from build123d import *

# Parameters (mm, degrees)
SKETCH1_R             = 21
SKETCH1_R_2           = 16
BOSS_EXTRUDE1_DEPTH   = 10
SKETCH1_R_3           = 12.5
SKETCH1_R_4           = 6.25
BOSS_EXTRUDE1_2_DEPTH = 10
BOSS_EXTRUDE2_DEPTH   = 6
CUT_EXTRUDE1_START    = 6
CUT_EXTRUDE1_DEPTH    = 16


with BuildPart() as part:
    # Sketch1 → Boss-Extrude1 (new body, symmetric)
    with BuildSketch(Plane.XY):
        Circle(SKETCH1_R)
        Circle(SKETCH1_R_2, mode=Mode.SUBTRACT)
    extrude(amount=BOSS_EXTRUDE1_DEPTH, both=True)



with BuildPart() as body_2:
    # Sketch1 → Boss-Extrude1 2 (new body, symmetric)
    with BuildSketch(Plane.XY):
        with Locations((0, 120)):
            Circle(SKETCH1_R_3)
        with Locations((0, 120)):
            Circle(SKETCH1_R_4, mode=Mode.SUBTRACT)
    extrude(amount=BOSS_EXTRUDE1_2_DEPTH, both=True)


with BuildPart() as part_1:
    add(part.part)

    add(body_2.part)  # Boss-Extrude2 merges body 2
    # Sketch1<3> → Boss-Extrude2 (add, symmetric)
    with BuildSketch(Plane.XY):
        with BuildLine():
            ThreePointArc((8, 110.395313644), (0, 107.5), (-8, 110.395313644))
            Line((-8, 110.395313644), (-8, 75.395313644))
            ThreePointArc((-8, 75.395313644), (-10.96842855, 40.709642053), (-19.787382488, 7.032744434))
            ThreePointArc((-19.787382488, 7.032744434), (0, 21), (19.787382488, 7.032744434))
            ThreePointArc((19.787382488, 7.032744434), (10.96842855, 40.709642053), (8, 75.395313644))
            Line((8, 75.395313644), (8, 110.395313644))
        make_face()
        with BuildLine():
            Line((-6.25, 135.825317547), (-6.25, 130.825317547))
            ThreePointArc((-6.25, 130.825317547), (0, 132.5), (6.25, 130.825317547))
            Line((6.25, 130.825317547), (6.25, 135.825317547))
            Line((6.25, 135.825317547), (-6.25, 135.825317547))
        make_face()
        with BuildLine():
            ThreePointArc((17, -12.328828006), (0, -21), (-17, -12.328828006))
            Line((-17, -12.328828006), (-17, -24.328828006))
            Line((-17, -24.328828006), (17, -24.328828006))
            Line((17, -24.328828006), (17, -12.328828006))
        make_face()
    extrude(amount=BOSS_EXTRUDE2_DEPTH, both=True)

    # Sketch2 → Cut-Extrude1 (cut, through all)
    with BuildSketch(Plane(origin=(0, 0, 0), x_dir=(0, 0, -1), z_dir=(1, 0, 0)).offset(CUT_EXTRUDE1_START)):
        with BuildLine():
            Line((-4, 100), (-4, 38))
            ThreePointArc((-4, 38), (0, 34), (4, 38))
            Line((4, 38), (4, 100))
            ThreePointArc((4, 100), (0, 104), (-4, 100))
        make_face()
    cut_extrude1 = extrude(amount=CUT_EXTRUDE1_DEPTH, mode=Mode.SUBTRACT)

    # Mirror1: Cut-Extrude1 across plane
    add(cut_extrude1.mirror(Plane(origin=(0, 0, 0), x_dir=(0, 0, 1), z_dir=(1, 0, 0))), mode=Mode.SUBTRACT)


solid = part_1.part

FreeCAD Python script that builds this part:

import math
import FreeCAD as App
import Part
import Sketcher
from FreeCAD import Vector

doc = App.newDocument("Part")
body = doc.addObject("PartDesign::Body", "Body")

# Sketch on XY plane
sketch1 = body.newObject("Sketcher::SketchObject", "Sketch")
sketch1.AttachmentSupport = (doc.getObject("XY_Plane"), [""])
sketch1.MapMode = "FlatFace"
sketch1.addGeometry([
    Part.Circle(Vector(0, 0, 0), Vector(0, 0, 1), 21),
    Part.Circle(Vector(0, 0, 0), Vector(0, 0, 1), 16),
], False)
sketch1.addConstraint([
    Sketcher.Constraint("Coincident", 0, 3, -1, 1),
    Sketcher.Constraint("Coincident", 1, 3, -1, 1),
    Sketcher.Constraint("Diameter", 0, 42.0),
    Sketcher.Constraint("Diameter", 1, 32.0),
])
pad1 = body.newObject("PartDesign::Pad", "Pad")
pad1.Profile = sketch1
pad1.Length = 20
pad1.Midplane = True
body2 = doc.addObject("PartDesign::Body", "Body001")

# Sketch on XY plane
sketch2 = body2.newObject("Sketcher::SketchObject", "Sketch001")
sketch2.AttachmentSupport = (doc.getObject("XY_Plane001"), [""])
sketch2.MapMode = "FlatFace"
sketch2.addGeometry([
    Part.Circle(Vector(0, 120, 0), Vector(0, 0, 1), 12),
    Part.Circle(Vector(0, 120, 0), Vector(0, 0, 1), 6),
], False)
sketch2.addConstraint([
    Sketcher.Constraint("Coincident", 1, 3, 0, 3),
    Sketcher.Constraint("PointOnObject", 0, 3, -2),
    Sketcher.Constraint("Diameter", 0, 25.0),
    Sketcher.Constraint("Diameter", 1, 12.5),
    Sketcher.Constraint("DistanceY", -1, 1, 0, 3, 120.0),
])
pad2 = body2.newObject("PartDesign::Pad", "Pad001")
pad2.Profile = sketch2
pad2.Length = 20
pad2.Midplane = True
body.AllowCompound = True
doc.recompute()

boolean = body.newObject("PartDesign::Boolean", "Boolean")
boolean.Type = "Fuse"
boolean.addObjects([body2])

# Sketch on XY plane
sketch3 = body.newObject("Sketcher::SketchObject", "Sketch002")
sketch3.AttachmentSupport = (doc.getObject("XY_Plane"), [""])
sketch3.MapMode = "FlatFace"
sketch3.addGeometry([
    Part.ArcOfCircle(Part.Circle(Vector(0, 120, 0), Vector(0, 0, 1), 12), math.radians(-130), math.radians(-50)),  # 0
    Part.LineSegment(Vector(-8, 110, 0), Vector(-8, 75, 0)),  # 1
    Part.ArcOfCircle(Part.Circle(Vector(-212, 75, 0), Vector(0, 0, 1), 204), math.radians(-19.57), math.radians(0)),  # 2
    Part.ArcOfCircle(Part.Circle(Vector(0, 0, 0), Vector(0, 0, 1), 21), math.radians(20), math.radians(160)),  # 3
    Part.ArcOfCircle(Part.Circle(Vector(212, 75, 0), Vector(0, 0, 1), 204), math.radians(180), math.radians(199.57)),  # 4
    Part.LineSegment(Vector(8, 75, 0), Vector(8, 110, 0)),  # 5
    Part.LineSegment(Vector(-6, 136, 0), Vector(-6, 131, 0)),  # 6
    Part.ArcOfCircle(Part.Circle(Vector(0, 120, 0), Vector(0, 0, 1), 12), math.radians(60), math.radians(120)),  # 7
    Part.LineSegment(Vector(6, 131, 0), Vector(6, 136, 0)),  # 8
    Part.LineSegment(Vector(6, 136, 0), Vector(-6, 136, 0)),  # 9
    Part.ArcOfCircle(Part.Circle(Vector(0, 0, 0), Vector(0, 0, 1), 21), math.radians(-144), math.radians(-36)),  # 10
    Part.LineSegment(Vector(-17, -12, 0), Vector(-17, -24, 0)),  # 11
    Part.LineSegment(Vector(-17, -24, 0), Vector(17, -24, 0)),  # 12
    Part.LineSegment(Vector(17, -24, 0), Vector(17, -12, 0)),  # 13
], False)
sketch3.addConstraint([
    Sketcher.Constraint("Coincident", 0, 1, 1, 1),
    Sketcher.Constraint("Tangent", 1, 2, 2, 2),
    Sketcher.Constraint("Tangent", 2, 1, 3, 2),
    Sketcher.Constraint("Tangent", 3, 1, 4, 2),
    Sketcher.Constraint("Tangent", 4, 1, 5, 1),
    Sketcher.Constraint("Coincident", 5, 2, 0, 2),
    Sketcher.Constraint("Coincident", 6, 2, 7, 2),
    Sketcher.Constraint("Coincident", 7, 1, 8, 1),
    Sketcher.Constraint("Coincident", 8, 2, 9, 1),
    Sketcher.Constraint("Coincident", 9, 2, 6, 1),
    Sketcher.Constraint("Coincident", 10, 1, 11, 1),
    Sketcher.Constraint("Coincident", 11, 2, 12, 1),
    Sketcher.Constraint("Coincident", 12, 2, 13, 1),
    Sketcher.Constraint("Coincident", 13, 2, 10, 2),
    Sketcher.Constraint("Vertical", 1),
    Sketcher.Constraint("Vertical", 5),
    Sketcher.Constraint("Vertical", 6),
    Sketcher.Constraint("Vertical", 8),
    Sketcher.Constraint("Horizontal", 9),
    Sketcher.Constraint("Vertical", 11),
    Sketcher.Constraint("Horizontal", 12),
    Sketcher.Constraint("Vertical", 13),
    Sketcher.Constraint("Coincident", 3, 3, -1, 1),
    Sketcher.Constraint("Coincident", 10, 3, -1, 1),
    Sketcher.Constraint("Coincident", 7, 3, 0, 3),
    Sketcher.Constraint("Equal", 2, 4),
    Sketcher.Constraint("Equal", 0, 7),
    Sketcher.Constraint("Equal", 3, 10),
    Sketcher.Constraint("Symmetric", 0, 1, 5, 2, -2),
    Sketcher.Constraint("Horizontal", 6, 2, 7, 1),
    Sketcher.Constraint("Horizontal", 10, 1, 13, 2),
    Sketcher.Constraint("Radius", 3, 21.0),
    Sketcher.Constraint("Radius", 0, 12.5),
    Sketcher.Constraint("DistanceX", 12, 1, 12, 2, 34.0),
    Sketcher.Constraint("DistanceY", 1, 2, 1, 1, 35.0),
    Sketcher.Constraint("DistanceY", 6, 2, 6, 1, 5.0),
    Sketcher.Constraint("DistanceY", 11, 2, 11, 1, 12.0),
    Sketcher.Constraint("DistanceX", 9, 2, 9, 1, 12.5),
    Sketcher.Constraint("DistanceY", -1, 1, 0, 3, 120.0),
    Sketcher.Constraint("DistanceX", 0, 1, -1, 1, 8.0),
])
pad3 = body.newObject("PartDesign::Pad", "Pad002")
pad3.Profile = sketch3
pad3.Length = 12
pad3.Midplane = True

# Sketch on YZ plane
sketch4 = body.newObject("Sketcher::SketchObject", "Sketch003")
sketch4.AttachmentSupport = (doc.getObject("YZ_Plane"), [""])
sketch4.MapMode = "FlatFace"
sketch4.AttachmentOffset = App.Placement(Vector(0, 0, 6), App.Rotation())
sketch4.addGeometry([
    Part.LineSegment(Vector(100, 4, 0), Vector(38, 4, 0)),
    Part.ArcOfCircle(Part.Circle(Vector(38, 0, 0), Vector(0, 0, 1), 4), math.radians(90), math.radians(270)),
    Part.LineSegment(Vector(38, -4, 0), Vector(100, -4, 0)),
    Part.ArcOfCircle(Part.Circle(Vector(100, 0, 0), Vector(0, 0, 1), 4), math.radians(-90), math.radians(90)),
], False)
sketch4.addConstraint([
    Sketcher.Constraint("Tangent", 0, 2, 1, 1),
    Sketcher.Constraint("Tangent", 1, 2, 2, 1),
    Sketcher.Constraint("Tangent", 2, 2, 3, 1),
    Sketcher.Constraint("Tangent", 3, 2, 0, 1),
    Sketcher.Constraint("Horizontal", 0),
    Sketcher.Constraint("Horizontal", 2),
    Sketcher.Constraint("PointOnObject", 1, 3, -1),
    Sketcher.Constraint("Radius", 1, 4.0),
    Sketcher.Constraint("DistanceX", 0, 2, 0, 1, 62.0),
    Sketcher.Constraint("DistanceX", -1, 1, 1, 3, 38.0),
])
pocket1 = body.newObject("PartDesign::Pocket", "Pocket")
pocket1.Profile = sketch4
pocket1.Type = "ThroughAll"
pocket1.Reversed = True
doc.recompute()

mirrored = body.newObject("PartDesign::Mirrored", "Mirrored")
mirrored.Originals = [pocket1]
mirrored.MirrorPlane = (doc.getObject("YZ_Plane"), [""])
body.Tip = mirrored

doc.recompute()
